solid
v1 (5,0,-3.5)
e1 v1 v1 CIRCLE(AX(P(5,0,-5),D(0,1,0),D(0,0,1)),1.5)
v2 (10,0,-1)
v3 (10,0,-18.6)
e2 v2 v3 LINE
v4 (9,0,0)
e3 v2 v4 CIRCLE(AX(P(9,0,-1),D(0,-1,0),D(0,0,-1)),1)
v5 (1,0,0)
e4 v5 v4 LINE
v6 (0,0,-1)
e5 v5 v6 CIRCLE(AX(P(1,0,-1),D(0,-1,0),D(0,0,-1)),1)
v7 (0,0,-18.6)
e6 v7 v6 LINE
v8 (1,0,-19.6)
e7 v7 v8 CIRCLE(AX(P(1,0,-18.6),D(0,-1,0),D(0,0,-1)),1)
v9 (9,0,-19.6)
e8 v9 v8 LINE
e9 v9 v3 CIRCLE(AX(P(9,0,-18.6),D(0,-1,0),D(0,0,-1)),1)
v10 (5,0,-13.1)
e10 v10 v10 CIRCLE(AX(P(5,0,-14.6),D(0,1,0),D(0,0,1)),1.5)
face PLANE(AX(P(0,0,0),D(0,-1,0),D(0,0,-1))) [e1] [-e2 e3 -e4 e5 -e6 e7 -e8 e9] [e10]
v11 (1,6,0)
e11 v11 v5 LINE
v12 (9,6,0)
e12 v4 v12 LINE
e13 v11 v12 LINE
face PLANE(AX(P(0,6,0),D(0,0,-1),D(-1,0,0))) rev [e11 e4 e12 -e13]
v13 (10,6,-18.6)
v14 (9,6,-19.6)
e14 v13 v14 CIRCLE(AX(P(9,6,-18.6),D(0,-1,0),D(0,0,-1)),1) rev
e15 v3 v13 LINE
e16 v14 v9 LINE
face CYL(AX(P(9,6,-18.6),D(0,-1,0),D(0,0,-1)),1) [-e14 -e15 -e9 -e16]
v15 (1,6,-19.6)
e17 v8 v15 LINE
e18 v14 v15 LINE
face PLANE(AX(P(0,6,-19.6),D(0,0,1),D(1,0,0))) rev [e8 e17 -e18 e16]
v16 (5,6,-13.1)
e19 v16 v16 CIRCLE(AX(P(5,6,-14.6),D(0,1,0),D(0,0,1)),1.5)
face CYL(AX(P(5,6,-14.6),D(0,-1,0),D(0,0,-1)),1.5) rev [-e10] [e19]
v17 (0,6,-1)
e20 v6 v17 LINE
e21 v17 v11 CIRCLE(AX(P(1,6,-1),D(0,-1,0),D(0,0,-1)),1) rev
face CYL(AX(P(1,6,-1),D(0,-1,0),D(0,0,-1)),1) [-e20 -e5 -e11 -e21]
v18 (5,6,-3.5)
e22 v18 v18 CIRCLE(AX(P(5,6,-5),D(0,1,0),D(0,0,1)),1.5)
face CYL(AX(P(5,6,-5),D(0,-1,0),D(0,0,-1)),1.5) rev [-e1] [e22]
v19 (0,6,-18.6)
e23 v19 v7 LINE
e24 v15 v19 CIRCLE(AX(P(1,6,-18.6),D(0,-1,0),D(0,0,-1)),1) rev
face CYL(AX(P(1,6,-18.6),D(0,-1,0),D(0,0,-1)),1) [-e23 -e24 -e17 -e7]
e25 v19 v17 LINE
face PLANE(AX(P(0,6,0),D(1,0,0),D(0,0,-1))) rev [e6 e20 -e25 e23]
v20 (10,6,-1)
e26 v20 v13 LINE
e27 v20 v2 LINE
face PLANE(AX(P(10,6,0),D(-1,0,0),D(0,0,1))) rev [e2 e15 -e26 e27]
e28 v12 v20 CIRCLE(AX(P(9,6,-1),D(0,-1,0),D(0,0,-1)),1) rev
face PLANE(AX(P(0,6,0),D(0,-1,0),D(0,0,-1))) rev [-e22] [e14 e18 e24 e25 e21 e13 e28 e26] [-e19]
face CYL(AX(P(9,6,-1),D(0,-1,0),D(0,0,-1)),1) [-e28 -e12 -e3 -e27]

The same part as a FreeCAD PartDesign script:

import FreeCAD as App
import Part
import Sketcher

V = App.Vector


def edges_at(feature, points):
    """Names of the edges that pass closest to the given points."""
    edges = feature.Shape.Edges
    near = lambda p: min(range(len(edges)), key=lambda i: edges[i].distToShape(Part.Vertex(*p))[0])
    return sorted({f"Edge{near(p) + 1}" for p in points})


def add_polygon(sketch, points):
    """Adds a closed chain of lines whose ends are joined by coincident constraints."""
    first, n = sketch.GeometryCount, len(points)
    for a, b in zip(points, points[1:] + points[:1]):
        sketch.addGeometry(Part.LineSegment(App.Vector(*a, 0), App.Vector(*b, 0)), False)
    for i in range(n):
        sketch.addConstraint(Sketcher.Constraint("Coincident", first + i, 2, first + (i + 1) % n, 1))

doc = App.newDocument("Part")
params = doc.addObject("Spreadsheet::Sheet", "Params")
for row, (alias, value) in enumerate([
    ("sketch1_diameter", "3 mm"),
    ("sketch1_width", "10 mm"),
    ("sketch1_height", "19.6 mm"),
    ("pad1_length", "6 mm"),
    ("fillet_radius", "1 mm"),
], start=1):
    params.set(f"A{row}", alias)
    params.set(f"B{row}", "=" + value)
    params.setAlias(f"B{row}", alias)

body = doc.addObject("PartDesign::Body", "Body")

# Sketch on XZ plane
sketch1 = body.newObject("Sketcher::SketchObject", "Sketch")
sketch1.AttachmentSupport = (doc.getObject("XZ_Plane"), [""])
sketch1.MapMode = "FlatFace"
add_polygon(sketch1, [(0, -19.6), (0, 0), (10, 0), (10, -19.6)])  # lines 0-3
sketch1.addGeometry(Part.Circle(V(5, -5, 0), V(0, 0, 1), 1.5), False)  # 4
sketch1.addGeometry(Part.Circle(V(5, -14.6, 0), V(0, 0, 1), 1.5), False)  # 5
sketch1.addConstraint([
    Sketcher.Constraint("Vertical", 0),
    Sketcher.Constraint("Horizontal", 1),
    Sketcher.Constraint("Vertical", 2),
    Sketcher.Constraint("Horizontal", 3),
    Sketcher.Constraint("Coincident", 0, 2, -1, 1),
    Sketcher.Constraint("Equal", 4, 5),
    Sketcher.Constraint("Vertical", 4, 3, 5, 3),
    Sketcher.Constraint("Diameter", 4, 3.0),
    Sketcher.Constraint("DistanceX", 1, 1, 1, 2, 10.0),
    Sketcher.Constraint("DistanceY", 0, 1, 0, 2, 19.6),
    Sketcher.Constraint("DistanceX", -1, 1, 4, 3, 5.0),
    Sketcher.Constraint("DistanceY", 4, 3, -1, 1, 5.0),
    Sketcher.Constraint("DistanceY", 2, 2, 5, 3, 5.0),
])
sketch1.setExpression("Constraints[11]", "Params.sketch1_diameter")
sketch1.setExpression("Constraints[12]", "Params.sketch1_width")
sketch1.setExpression("Constraints[13]", "Params.sketch1_height")
pad1 = body.newObject("PartDesign::Pad", "Pad")
pad1.Profile = sketch1
pad1.setExpression("Length", "Params.pad1_length")
pad1.Reversed = True
doc.recompute()

fillet = body.newObject("PartDesign::Fillet", "Fillet")
fillet.Base = (pad1, edges_at(pad1, [
    (0, 3, -19.6),
    (10, 3, -19.6),
    (10, 3, 0),
    (0, 3, 0),
]))
fillet.setExpression("Radius", "Params.fillet_radius")

doc.recompute()
